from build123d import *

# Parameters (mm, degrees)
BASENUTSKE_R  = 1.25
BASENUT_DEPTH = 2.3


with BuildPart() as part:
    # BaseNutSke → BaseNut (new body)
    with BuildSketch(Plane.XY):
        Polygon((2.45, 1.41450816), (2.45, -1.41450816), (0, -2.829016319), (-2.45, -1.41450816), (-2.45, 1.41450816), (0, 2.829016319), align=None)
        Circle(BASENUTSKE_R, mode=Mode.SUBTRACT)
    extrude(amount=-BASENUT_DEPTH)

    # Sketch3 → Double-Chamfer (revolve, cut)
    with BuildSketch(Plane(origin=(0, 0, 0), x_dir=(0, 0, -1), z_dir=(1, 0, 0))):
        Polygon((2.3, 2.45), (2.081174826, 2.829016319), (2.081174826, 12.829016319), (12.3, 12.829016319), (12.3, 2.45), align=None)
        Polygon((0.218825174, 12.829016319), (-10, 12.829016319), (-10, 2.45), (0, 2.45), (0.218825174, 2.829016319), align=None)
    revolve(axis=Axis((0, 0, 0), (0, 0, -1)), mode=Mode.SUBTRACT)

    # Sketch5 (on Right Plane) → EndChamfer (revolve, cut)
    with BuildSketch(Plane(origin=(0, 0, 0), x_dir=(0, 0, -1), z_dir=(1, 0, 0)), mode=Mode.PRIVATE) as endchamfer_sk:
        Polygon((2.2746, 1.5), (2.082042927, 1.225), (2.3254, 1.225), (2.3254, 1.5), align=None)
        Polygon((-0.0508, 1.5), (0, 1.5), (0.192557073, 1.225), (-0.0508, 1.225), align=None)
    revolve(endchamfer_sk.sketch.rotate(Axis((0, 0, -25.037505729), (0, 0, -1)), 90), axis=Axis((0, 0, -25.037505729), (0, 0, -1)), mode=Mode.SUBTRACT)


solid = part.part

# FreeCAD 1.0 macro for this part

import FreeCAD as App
import Part
import Sketcher
from FreeCAD import Vector
Q = App.Units.Quantity


def add_polygon(sketch, points):
    """Adds a closed chain of lines whose ends are joined by coincident constraints."""
    first, n = sketch.GeometryCount, len(points)
    for a, b in zip(points, points[1:] + points[:1]):
        sketch.addGeometry(Part.LineSegment(App.Vector(*a, 0), App.Vector(*b, 0)), False)
    for i in range(n):
        sketch.addConstraint(Sketcher.Constraint("Coincident", first + i, 2, first + (i + 1) % n, 1))

doc = App.newDocument("Part")
body = doc.addObject("PartDesign::Body", "Body")

sketch1 = body.newObject("Sketcher::SketchObject", "Sketch")
sketch1.AttachmentSupport = (doc.getObject("XY_Plane"), [""])
sketch1.MapMode = "FlatFace"
add_polygon(sketch1, [(2.5, -1.4), (2.5, 1.4), (0, 2.8), (-2.5, 1.4), (-2.5, -1.4), (0, -2.8)])
sketch1.addGeometry(Part.Circle(Vector(0, 0, 0), Vector(0, 0, 1), 1.2), False)
sketch1.addConstraint(Sketcher.Constraint("Vertical", 0))
sketch1.addConstraint(Sketcher.Constraint("Vertical", 3))
sketch1.addConstraint(Sketcher.Constraint("Coincident", 6, 3, -1, 1))
sketch1.addConstraint(Sketcher.Constraint("Symmetric", 0, 2, 3, 2, -1, 1))
sketch1.addConstraint(Sketcher.Constraint("Symmetric", 1, 2, 4, 2, -1, 1))
sketch1.addConstraint(Sketcher.Constraint("PointOnObject", 1, 2, -2))
sketch1.addConstraint(Sketcher.Constraint("Parallel", 2, 5))
sketch1.addConstraint(Sketcher.Constraint("Horizontal", 0, 2, 2, 2))
sketch1.addConstraint(Sketcher.Constraint("Diameter", 6, 2.5))
sketch1.addConstraint(Sketcher.Constraint("Angle", 1, Q("150 deg")))
sketch1.addConstraint(Sketcher.Constraint("DistanceX", 2, 2, 0, 2, 4.9))
sketch1.addConstraint(Sketcher.Constraint("DistanceY", 0, 1, 0, 2, 2.829016))
pad1 = body.newObject("PartDesign::Pad", "Pad")
pad1.Profile = sketch1
pad1.Length = 2.3
pad1.Reversed = True

sketch2 = body.newObject("Sketcher::SketchObject", "Sketch001")
sketch2.AttachmentSupport = (doc.getObject("YZ_Plane"), [""])
sketch2.MapMode = "FlatFace"
add_polygon(sketch2, [(2.83, -2.08), (2.45, -2.3), (2.45, -12.3), (12.83, -12.3), (12.83, -2.08)])
add_polygon(sketch2, [(12.83, -0.22), (12.83, 10), (2.45, 10), (2.45, 0), (2.83, -0.22)])
sketch2.addConstraint(Sketcher.Constraint("Vertical", 1))
sketch2.addConstraint(Sketcher.Constraint("Horizontal", 2))
sketch2.addConstraint(Sketcher.Constraint("Vertical", 3))
sketch2.addConstraint(Sketcher.Constraint("Horizontal", 4))
sketch2.addConstraint(Sketcher.Constraint("Vertical", 5))
sketch2.addConstraint(Sketcher.Constraint("Horizontal", 6))
sketch2.addConstraint(Sketcher.Constraint("Vertical", 7))
sketch2.addConstraint(Sketcher.Constraint("Horizontal", 9))
sketch2.addConstraint(Sketcher.Constraint("PointOnObject", 7, 2, -1))
sketch2.addConstraint(Sketcher.Constraint("Vertical", 3, 2, 5, 2))
sketch2.addConstraint(Sketcher.Constraint("Vertical", 1, 2, 6, 2))
sketch2.addConstraint(Sketcher.Constraint("Vertical", 4, 2, 8, 2))
sketch2.addConstraint(Sketcher.Constraint("Equal", 9, 1))
sketch2.addConstraint(Sketcher.Constraint("Equal", 3, 5))
sketch2.addConstraint(Sketcher.Constraint("Equal", 1, 7))
sketch2.addConstraint(Sketcher.Constraint("DistanceX", 4, 2, 4, 1, 10.0))
sketch2.addConstraint(Sketcher.Constraint("Angle", 0, Q("-150 deg")))
sketch2.addConstraint(Sketcher.Constraint("DistanceY", 0, 2, -1, 1, 2.3))
sketch2.addConstraint(Sketcher.Constraint("DistanceX", -1, 1, 0, 2, 2.45))
sketch2.addConstraint(Sketcher.Constraint("Distance", 0, 0.43765))
groove = body.newObject("PartDesign::Groove", "Groove")
groove.Profile = sketch2
groove.ReferenceAxis = (sketch2, ["V_Axis"])
groove.Angle = 360

sketch3 = body.newObject("Sketcher::SketchObject", "Sketch002")
sketch3.AttachmentSupport = (doc.getObject("YZ_Plane"), [""])
sketch3.MapMode = "FlatFace"
add_polygon(sketch3, [(1.5, -2.27), (1.23, -2.08), (1.23, -2.33), (1.5, -2.33)])
add_polygon(sketch3, [(1.5, 0), (1.5, 0.05), (1.23, 0.05), (1.23, -0.19)])
sketch3.addConstraint(Sketcher.Constraint("Vertical", 1))
sketch3.addConstraint(Sketcher.Constraint("Horizontal", 2))
sketch3.addConstraint(Sketcher.Constraint("Vertical", 3))
sketch3.addConstraint(Sketcher.Constraint("Vertical", 4))
sketch3.addConstraint(Sketcher.Constraint("Horizontal", 5))
sketch3.addConstraint(Sketcher.Constraint("Vertical", 6))
sketch3.addConstraint(Sketcher.Constraint("PointOnObject", 7, 2, -1))
sketch3.addConstraint(Sketcher.Constraint("Vertical", 3, 2, 4, 2))
sketch3.addConstraint(Sketcher.Constraint("Vertical", 1, 2, 5, 2))
sketch3.addConstraint(Sketcher.Constraint("Equal", 3, 4))
sketch3.addConstraint(Sketcher.Constraint("Equal", 1, 6))
sketch3.addConstraint(Sketcher.Constraint("Angle", 0, Q("145 deg")))
sketch3.addConstraint(Sketcher.Constraint("DistanceX", -1, 1, 2, 2, 1.5))
sketch3.addConstraint(Sketcher.Constraint("DistanceX", 2, 1, 2, 2, 0.275))
sketch3.addConstraint(Sketcher.Constraint("DistanceY", 3, 1, 3, 2, 0.0508))
sketch3.addConstraint(Sketcher.Constraint("DistanceY", 1, 2, -1, 1, 2.3254))
groove2 = body.newObject("PartDesign::Groove", "Groove001")
groove2.Profile = sketch3
groove2.ReferenceAxis = (sketch3, ["V_Axis"])
groove2.Angle = 360

doc.recompute()
